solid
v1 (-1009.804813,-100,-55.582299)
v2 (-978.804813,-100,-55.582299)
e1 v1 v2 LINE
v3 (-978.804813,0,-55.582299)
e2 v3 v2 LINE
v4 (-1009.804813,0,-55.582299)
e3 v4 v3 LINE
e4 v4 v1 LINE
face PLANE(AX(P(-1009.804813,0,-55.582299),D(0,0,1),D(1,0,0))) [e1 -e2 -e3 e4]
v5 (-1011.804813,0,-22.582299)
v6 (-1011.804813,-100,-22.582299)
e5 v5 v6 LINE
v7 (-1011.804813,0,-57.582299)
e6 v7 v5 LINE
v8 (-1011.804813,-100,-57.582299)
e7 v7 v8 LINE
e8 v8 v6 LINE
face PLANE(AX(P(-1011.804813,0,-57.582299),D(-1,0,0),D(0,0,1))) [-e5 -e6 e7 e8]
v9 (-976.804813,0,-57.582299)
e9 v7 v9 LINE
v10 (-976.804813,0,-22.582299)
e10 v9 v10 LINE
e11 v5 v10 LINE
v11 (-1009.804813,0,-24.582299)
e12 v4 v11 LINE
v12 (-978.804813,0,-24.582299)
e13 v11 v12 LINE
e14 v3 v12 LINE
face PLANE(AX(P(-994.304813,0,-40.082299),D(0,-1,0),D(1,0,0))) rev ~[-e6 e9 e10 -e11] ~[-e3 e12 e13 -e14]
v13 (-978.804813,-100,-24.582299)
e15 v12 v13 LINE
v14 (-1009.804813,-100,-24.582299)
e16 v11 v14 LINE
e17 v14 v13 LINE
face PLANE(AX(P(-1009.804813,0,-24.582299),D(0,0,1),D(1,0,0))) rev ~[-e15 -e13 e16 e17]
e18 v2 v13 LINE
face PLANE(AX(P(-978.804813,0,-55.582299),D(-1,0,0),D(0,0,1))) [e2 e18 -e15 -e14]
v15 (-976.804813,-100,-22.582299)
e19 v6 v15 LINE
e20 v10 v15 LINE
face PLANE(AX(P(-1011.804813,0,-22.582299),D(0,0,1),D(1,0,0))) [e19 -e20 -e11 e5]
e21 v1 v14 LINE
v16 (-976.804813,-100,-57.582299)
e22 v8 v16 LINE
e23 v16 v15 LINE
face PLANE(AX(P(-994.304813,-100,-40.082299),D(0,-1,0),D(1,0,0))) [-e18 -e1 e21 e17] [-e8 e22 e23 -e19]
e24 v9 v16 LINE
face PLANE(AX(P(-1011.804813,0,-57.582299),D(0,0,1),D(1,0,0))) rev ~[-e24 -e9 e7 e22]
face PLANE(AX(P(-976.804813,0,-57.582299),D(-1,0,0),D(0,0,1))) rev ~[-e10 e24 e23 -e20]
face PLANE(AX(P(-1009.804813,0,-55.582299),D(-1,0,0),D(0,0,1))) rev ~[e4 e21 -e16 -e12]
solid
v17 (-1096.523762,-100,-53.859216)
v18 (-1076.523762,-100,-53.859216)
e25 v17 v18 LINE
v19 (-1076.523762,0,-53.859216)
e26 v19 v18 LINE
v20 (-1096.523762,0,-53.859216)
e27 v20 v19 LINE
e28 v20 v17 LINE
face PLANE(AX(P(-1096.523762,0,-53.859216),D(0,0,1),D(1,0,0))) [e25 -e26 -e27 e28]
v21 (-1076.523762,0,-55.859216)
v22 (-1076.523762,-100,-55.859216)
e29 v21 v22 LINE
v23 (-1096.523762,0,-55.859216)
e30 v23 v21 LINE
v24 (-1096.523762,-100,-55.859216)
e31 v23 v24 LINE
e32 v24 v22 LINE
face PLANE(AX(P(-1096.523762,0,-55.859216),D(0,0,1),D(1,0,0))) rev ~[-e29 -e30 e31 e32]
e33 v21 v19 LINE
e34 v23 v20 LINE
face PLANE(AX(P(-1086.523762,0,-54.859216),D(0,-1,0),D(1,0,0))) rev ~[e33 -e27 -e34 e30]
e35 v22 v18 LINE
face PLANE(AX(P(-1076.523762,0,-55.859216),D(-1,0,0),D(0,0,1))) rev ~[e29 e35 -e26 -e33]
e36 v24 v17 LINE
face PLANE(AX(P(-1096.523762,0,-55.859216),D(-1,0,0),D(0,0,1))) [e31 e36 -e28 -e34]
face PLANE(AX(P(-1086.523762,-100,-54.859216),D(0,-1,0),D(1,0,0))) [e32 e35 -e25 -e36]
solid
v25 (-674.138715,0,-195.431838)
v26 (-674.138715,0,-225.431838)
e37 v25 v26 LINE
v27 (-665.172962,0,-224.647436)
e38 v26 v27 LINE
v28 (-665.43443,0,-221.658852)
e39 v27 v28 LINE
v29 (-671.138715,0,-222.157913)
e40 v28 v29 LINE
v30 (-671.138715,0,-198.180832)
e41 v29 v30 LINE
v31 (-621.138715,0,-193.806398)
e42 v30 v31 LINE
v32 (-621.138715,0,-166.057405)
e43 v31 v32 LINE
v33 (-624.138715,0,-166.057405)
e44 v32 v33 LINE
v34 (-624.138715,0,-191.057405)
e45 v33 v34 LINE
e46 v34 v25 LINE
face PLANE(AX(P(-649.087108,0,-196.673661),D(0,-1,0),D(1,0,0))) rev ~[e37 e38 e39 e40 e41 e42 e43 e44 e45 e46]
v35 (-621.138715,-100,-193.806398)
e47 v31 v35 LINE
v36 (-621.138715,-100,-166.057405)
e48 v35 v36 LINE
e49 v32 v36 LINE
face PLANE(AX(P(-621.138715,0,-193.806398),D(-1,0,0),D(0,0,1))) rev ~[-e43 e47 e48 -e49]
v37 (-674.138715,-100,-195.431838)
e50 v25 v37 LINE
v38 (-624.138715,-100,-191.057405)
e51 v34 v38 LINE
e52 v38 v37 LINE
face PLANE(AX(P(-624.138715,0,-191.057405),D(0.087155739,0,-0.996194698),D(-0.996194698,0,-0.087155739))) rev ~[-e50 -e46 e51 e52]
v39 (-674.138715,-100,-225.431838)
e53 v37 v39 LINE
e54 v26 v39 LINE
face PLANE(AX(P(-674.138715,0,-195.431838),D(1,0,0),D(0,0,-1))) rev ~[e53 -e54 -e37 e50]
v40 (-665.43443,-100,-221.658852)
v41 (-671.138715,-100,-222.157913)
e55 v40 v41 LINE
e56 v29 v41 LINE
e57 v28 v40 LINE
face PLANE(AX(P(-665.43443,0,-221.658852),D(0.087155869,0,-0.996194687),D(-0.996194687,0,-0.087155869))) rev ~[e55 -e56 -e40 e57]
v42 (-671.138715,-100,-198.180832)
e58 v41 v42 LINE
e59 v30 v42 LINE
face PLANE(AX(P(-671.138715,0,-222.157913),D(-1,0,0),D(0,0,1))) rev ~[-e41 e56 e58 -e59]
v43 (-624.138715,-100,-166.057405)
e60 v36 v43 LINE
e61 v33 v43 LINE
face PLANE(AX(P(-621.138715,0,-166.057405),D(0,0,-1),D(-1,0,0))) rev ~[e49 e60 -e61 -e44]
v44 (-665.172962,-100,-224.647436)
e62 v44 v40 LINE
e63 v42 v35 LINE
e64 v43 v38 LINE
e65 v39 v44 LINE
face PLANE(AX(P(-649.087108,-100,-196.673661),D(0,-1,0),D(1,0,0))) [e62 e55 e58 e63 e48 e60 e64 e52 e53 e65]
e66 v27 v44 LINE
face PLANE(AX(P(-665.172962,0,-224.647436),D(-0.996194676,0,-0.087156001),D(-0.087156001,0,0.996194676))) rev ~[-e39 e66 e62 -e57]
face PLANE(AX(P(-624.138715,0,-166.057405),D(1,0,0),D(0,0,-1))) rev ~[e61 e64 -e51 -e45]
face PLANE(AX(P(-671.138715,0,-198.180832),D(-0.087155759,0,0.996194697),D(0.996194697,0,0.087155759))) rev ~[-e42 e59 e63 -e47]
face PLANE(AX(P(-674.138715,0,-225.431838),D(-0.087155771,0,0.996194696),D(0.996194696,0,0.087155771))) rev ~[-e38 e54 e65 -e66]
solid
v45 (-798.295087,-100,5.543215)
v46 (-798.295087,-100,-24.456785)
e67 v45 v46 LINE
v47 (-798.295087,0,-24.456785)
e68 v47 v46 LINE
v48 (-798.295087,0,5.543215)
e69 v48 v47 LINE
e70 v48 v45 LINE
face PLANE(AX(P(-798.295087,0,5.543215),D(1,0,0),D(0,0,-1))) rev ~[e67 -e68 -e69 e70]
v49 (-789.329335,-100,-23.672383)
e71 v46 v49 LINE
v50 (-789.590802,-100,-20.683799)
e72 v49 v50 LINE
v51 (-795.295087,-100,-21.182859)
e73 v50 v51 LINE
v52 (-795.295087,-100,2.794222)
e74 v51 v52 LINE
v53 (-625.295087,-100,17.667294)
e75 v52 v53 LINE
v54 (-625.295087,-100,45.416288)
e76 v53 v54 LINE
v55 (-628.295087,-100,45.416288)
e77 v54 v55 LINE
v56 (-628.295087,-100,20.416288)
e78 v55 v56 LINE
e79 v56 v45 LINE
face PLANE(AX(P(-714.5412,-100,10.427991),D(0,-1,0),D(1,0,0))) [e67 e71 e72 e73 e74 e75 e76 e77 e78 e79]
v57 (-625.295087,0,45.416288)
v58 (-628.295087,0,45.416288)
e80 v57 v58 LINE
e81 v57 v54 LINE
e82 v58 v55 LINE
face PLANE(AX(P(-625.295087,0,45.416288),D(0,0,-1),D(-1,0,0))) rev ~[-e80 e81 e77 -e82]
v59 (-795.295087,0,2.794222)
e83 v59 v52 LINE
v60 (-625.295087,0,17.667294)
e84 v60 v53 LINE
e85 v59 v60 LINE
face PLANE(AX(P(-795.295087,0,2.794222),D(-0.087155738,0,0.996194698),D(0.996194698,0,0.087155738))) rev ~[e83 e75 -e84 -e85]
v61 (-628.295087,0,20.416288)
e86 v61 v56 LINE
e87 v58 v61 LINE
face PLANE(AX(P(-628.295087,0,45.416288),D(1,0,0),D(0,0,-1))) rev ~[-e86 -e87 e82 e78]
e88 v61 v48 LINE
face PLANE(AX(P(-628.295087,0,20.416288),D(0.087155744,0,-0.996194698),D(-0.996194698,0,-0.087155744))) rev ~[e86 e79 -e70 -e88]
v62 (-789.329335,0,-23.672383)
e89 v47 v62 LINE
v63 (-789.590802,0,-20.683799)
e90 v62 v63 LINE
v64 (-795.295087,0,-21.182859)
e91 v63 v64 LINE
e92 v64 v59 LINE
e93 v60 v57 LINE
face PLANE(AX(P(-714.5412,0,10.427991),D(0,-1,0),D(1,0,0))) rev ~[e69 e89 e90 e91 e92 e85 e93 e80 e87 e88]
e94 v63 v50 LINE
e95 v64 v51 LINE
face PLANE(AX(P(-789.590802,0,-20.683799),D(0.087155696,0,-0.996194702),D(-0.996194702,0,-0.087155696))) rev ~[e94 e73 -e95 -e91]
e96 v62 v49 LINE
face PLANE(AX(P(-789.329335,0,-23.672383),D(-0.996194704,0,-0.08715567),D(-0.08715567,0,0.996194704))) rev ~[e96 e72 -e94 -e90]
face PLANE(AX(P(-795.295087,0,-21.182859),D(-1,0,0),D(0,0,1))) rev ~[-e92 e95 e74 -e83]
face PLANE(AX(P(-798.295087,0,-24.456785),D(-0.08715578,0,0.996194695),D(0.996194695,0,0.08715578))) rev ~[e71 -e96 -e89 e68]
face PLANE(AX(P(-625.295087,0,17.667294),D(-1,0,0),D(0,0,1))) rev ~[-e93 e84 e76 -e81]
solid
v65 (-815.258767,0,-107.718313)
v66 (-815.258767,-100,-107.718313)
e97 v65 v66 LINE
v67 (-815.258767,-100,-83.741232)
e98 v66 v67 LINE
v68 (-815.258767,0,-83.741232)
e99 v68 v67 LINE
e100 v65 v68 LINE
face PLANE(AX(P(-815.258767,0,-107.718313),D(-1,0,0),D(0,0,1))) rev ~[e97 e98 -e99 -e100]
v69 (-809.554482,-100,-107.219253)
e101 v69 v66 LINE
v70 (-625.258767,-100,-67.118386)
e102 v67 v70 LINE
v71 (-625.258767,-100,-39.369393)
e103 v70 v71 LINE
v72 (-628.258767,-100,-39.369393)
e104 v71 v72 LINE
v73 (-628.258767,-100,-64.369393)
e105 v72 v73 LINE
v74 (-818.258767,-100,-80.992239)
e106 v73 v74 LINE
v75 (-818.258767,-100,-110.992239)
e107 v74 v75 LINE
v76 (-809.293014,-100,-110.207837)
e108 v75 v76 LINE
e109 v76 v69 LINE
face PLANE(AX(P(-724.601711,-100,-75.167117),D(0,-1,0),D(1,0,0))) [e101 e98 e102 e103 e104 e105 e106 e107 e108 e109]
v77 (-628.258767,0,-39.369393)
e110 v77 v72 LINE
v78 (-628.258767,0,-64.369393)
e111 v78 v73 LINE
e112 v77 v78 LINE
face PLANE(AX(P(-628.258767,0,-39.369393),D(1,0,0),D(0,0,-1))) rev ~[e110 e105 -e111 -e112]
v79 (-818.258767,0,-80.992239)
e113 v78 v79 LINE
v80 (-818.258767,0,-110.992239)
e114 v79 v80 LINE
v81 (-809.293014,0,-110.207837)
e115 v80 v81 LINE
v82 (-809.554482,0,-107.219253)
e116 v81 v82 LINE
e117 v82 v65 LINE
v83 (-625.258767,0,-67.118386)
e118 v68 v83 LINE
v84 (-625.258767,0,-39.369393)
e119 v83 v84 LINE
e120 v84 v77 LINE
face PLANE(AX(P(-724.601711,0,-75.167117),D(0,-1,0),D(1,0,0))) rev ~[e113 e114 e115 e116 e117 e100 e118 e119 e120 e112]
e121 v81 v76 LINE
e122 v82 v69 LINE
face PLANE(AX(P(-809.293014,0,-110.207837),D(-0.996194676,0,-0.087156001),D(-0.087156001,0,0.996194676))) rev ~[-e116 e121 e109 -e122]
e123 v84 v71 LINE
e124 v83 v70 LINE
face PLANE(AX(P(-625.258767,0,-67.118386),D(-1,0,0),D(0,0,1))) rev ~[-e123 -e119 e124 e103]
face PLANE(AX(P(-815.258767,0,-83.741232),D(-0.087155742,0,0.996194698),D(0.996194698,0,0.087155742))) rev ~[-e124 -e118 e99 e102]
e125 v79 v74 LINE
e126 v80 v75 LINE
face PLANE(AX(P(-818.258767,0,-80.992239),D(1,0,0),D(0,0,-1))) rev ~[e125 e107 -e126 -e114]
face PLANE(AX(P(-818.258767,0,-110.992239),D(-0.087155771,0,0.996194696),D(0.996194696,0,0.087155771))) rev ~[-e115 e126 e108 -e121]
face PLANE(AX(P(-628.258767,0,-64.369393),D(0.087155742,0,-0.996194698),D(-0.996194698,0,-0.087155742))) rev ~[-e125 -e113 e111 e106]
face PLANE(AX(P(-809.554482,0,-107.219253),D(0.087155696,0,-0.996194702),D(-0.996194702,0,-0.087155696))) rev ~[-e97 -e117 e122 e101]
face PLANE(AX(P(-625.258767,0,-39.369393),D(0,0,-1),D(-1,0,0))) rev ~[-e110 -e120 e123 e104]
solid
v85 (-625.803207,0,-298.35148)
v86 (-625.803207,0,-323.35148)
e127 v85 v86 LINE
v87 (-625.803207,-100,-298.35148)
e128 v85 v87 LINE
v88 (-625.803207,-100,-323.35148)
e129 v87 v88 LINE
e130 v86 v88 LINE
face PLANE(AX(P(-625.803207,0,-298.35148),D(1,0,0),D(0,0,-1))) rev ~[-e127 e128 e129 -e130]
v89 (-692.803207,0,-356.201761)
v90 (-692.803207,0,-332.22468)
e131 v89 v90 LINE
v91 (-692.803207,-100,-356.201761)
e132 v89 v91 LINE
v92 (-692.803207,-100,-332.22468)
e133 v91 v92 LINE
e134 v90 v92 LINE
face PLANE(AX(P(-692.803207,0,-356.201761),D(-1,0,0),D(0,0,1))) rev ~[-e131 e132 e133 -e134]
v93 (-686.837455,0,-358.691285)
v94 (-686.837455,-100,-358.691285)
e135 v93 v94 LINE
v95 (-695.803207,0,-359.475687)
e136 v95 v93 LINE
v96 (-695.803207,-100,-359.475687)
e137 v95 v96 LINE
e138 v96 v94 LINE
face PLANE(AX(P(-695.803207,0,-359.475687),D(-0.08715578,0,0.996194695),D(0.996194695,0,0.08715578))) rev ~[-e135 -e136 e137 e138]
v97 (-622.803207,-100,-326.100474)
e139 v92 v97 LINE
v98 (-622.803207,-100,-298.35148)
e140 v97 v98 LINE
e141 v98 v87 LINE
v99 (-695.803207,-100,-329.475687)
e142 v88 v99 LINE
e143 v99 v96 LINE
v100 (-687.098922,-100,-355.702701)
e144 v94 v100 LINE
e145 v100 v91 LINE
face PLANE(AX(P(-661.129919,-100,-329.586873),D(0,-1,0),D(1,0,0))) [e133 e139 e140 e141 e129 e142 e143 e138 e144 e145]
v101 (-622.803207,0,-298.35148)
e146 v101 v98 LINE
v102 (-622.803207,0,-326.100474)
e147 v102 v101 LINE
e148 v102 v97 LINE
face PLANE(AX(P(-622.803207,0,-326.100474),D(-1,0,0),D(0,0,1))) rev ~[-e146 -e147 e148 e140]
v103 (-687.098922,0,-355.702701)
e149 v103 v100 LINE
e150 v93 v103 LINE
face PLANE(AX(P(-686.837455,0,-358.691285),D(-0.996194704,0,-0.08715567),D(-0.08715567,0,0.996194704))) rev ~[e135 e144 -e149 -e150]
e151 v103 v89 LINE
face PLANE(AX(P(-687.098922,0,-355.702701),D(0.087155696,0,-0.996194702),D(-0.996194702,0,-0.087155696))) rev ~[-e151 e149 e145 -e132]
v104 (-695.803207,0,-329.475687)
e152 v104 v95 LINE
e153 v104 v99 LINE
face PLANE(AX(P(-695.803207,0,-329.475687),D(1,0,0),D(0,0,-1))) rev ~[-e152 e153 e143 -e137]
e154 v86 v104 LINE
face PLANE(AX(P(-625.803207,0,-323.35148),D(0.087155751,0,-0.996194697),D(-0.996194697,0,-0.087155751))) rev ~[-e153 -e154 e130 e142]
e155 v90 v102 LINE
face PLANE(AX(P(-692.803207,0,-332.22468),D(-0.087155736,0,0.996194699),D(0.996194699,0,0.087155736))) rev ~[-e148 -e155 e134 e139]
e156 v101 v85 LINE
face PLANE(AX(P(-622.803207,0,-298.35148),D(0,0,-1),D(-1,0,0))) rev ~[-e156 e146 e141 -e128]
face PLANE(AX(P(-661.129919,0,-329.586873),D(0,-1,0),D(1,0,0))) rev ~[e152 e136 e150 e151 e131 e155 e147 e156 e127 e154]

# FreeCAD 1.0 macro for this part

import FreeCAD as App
import Part
import Sketcher

V = App.Vector
Q = App.Units.Quantity


def add_polygon(sketch, points):
    """Adds a closed chain of lines whose ends are joined by coincident constraints."""
    first, n = sketch.GeometryCount, len(points)
    for a, b in zip(points, points[1:] + points[:1]):
        sketch.addGeometry(Part.LineSegment(App.Vector(*a, 0), App.Vector(*b, 0)), False)
    for i in range(n):
        sketch.addConstraint(Sketcher.Constraint("Coincident", first + i, 2, first + (i + 1) % n, 1))

doc = App.newDocument("Part")
params = doc.addObject("Spreadsheet::Sheet", "Params")
for row, (alias, value) in enumerate([
    ("sketch1_width", "35 mm"),
    ("sketch1_width2", "31 mm"),
    ("pad1_length", "100 mm"),
    ("sketch2_width", "3 mm"),
    ("sketch2_width2", "35 mm"),
    ("sketch2_width3", "31 mm"),
    ("sketch2_width4", "20 mm"),
    ("sketch2_height", "25 mm"),
    ("pad2_length", "100 mm"),
], start=1):
    params.set(f"A{row}", alias)
    params.set(f"B{row}", "=" + value)
    params.setAlias(f"B{row}", alias)

body = doc.addObject("PartDesign::Body", "Body")
body.AllowCompound = True

# Sketch on XZ plane
sketch1 = doc.addObject("Sketcher::SketchObject", "Sketch")
body.addObject(sketch1)
sketch1.AttachmentSupport = (doc.XZ_Plane, [""])
sketch1.MapMode = "FlatFace"
add_polygon(sketch1, [(-1012, -23), (-1012, -58), (-977, -58), (-977, -23)])  # lines 0-3
add_polygon(sketch1, [(-979, -56), (-1010, -56), (-1010, -25), (-979, -25)])  # lines 4-7
sketch1.addConstraint([
    Sketcher.Constraint("Vertical", 0),
    Sketcher.Constraint("Horizontal", 1),
    Sketcher.Constraint("Vertical", 2),
    Sketcher.Constraint("Horizontal", 3),
    Sketcher.Constraint("Horizontal", 4),
    Sketcher.Constraint("Vertical", 5),
    Sketcher.Constraint("Horizontal", 6),
    Sketcher.Constraint("Vertical", 7),
    Sketcher.Constraint("Equal", 3, 0),
    Sketcher.Constraint("Equal", 6, 5),
    Sketcher.Constraint("DistanceX", 1, 1, 1, 2, Q("35 mm")),
    Sketcher.Constraint("DistanceX", 4, 2, 4, 1, Q("31 mm")),
    Sketcher.Constraint("DistanceX", 0, 2, 4, 2, Q("2 mm")),
    Sketcher.Constraint("DistanceY", 0, 2, 4, 2, Q("2 mm")),
    Sketcher.Constraint("DistanceY", 0, 2, -1, 1, Q("57.582299 mm")),
    Sketcher.Constraint("DistanceX", 0, 2, -1, 1, Q("1011.804813 mm")),
])
sketch1.setExpression("Constraints[18]", "Params.sketch1_width")
sketch1.setExpression("Constraints[19]", "Params.sketch1_width2")
pad1 = doc.addObject("PartDesign::Pad", "Pad")
body.addObject(pad1)
pad1.Profile = sketch1
pad1.setExpression("Length", "Params.pad1_length")

# Sketch on XZ plane
sketch2 = doc.addObject("Sketcher::SketchObject", "Sketch001")
body.addObject(sketch2)
sketch2.AttachmentSupport = (doc.XZ_Plane, [""])
sketch2.MapMode = "FlatFace"
add_polygon(sketch2, [(-625.3, 45.4), (-628.3, 45.4), (-628.3, 20.4), (-798.3, 5.5), (-798.3, -24.5), (-789.3, -23.7), (-789.6, -20.7), (-795.3, -21.2), (-795.3, 2.8), (-625.3, 17.7)])  # lines 0-9
add_polygon(sketch2, [(-1011.8, -22.6), (-1011.8, -57.6), (-976.8, -57.6), (-976.8, -22.6)])  # lines 10-13
add_polygon(sketch2, [(-978.8, -55.6), (-1009.8, -55.6), (-1009.8, -24.6), (-978.8, -24.6)])  # lines 14-17
add_polygon(sketch2, [(-1096.5, -53.9), (-1096.5, -55.9), (-1076.5, -55.9), (-1076.5, -53.9)])  # lines 18-21
add_polygon(sketch2, [(-625.3, -39.4), (-628.3, -39.4), (-628.3, -64.4), (-818.3, -81), (-818.3, -111), (-809.3, -110.2), (-809.6, -107.2), (-815.3, -107.7), (-815.3, -83.7), (-625.3, -67.1)])  # lines 22-31
add_polygon(sketch2, [(-621.1, -166.1), (-624.1, -166.1), (-624.1, -191.1), (-674.1, -195.4), (-674.1, -225.4), (-665.2, -224.6), (-665.4, -221.7), (-671.1, -222.2), (-671.1, -198.2), (-621.1, -193.8)])  # lines 32-41
add_polygon(sketch2, [(-622.8, -298.4), (-625.8, -298.4), (-625.8, -323.4), (-695.8, -329.5), (-695.8, -359.5), (-686.8, -358.7), (-687.1, -355.7), (-692.8, -356.2), (-692.8, -332.2), (-622.8, -326.1)])  # lines 42-51
sketch2.addConstraint([
    Sketcher.Constraint("Horizontal", 0),
    Sketcher.Constraint("Vertical", 1),
    Sketcher.Constraint("Vertical", 3),
    Sketcher.Constraint("Vertical", 7),
    Sketcher.Constraint("Vertical", 9),
    Sketcher.Constraint("Vertical", 10),
    Sketcher.Constraint("Horizontal", 11),
    Sketcher.Constraint("Vertical", 12),
    Sketcher.Constraint("Horizontal", 13),
    Sketcher.Constraint("Horizontal", 14),
    Sketcher.Constraint("Vertical", 15),
    Sketcher.Constraint("Horizontal", 16),
    Sketcher.Constraint("Vertical", 17),
    Sketcher.Constraint("Vertical", 18),
    Sketcher.Constraint("Horizontal", 19),
    Sketcher.Constraint("Vertical", 20),
    Sketcher.Constraint("Horizontal", 21),
    Sketcher.Constraint("Horizontal", 22),
    Sketcher.Constraint("Vertical", 23),
    Sketcher.Constraint("Vertical", 25),
    Sketcher.Constraint("Vertical", 29),
    Sketcher.Constraint("Vertical", 31),
    Sketcher.Constraint("Horizontal", 32),
    Sketcher.Constraint("Vertical", 33),
    Sketcher.Constraint("Vertical", 35),
    Sketcher.Constraint("Vertical", 39),
    Sketcher.Constraint("Vertical", 41),
    Sketcher.Constraint("Horizontal", 42),
    Sketcher.Constraint("Vertical", 43),
    Sketcher.Constraint("Vertical", 45),
    Sketcher.Constraint("Vertical", 49),
    Sketcher.Constraint("Vertical", 51),
    Sketcher.Constraint("Parallel", 2, 4),
    Sketcher.Constraint("Perpendicular", 4, 5),
    Sketcher.Constraint("Perpendicular", 5, 6),
    Sketcher.Constraint("Parallel", 6, 8),
    Sketcher.Constraint("Parallel", 8, 24),
    Sketcher.Constraint("Parallel", 24, 26),
    Sketcher.Constraint("Perpendicular", 26, 27),
    Sketcher.Constraint("Perpendicular", 27, 28),
    Sketcher.Constraint("Parallel", 28, 30),
    Sketcher.Constraint("Parallel", 30, 34),
    Sketcher.Constraint("Parallel", 34, 36),
    Sketcher.Constraint("Perpendicular", 36, 37),
    Sketcher.Constraint("Perpendicular", 37, 38),
    Sketcher.Constraint("Parallel", 38, 40),
    Sketcher.Constraint("Parallel", 40, 44),
    Sketcher.Constraint("Parallel", 44, 46),
    Sketcher.Constraint("Perpendicular", 46, 47),
    Sketcher.Constraint("Perpendicular", 47, 48),
    Sketcher.Constraint("Parallel", 48, 50),
    Sketcher.Constraint("Equal", 0, 22),
    Sketcher.Constraint("Equal", 22, 32),
    Sketcher.Constraint("Equal", 32, 42),
    Sketcher.Constraint("Equal", 13, 10),
    Sketcher.Constraint("Equal", 16, 15),
    Sketcher.Constraint("Equal", 1, 23),
    Sketcher.Constraint("Equal", 3, 25),
    Sketcher.Constraint("Equal", 7, 29),
    Sketcher.Constraint("Equal", 9, 31),
    Sketcher.Constraint("Equal", 23, 33),
    Sketcher.Constraint("Equal", 25, 35),
    Sketcher.Constraint("Equal", 29, 39),
    Sketcher.Constraint("Equal", 31, 41),
    Sketcher.Constraint("Equal", 33, 43),
    Sketcher.Constraint("Equal", 35, 45),
    Sketcher.Constraint("Equal", 39, 49),
    Sketcher.Constraint("Equal", 41, 51),
    Sketcher.Constraint("Equal", 2, 8),
    Sketcher.Constraint("Equal", 4, 26),
    Sketcher.Constraint("Equal", 6, 28),
    Sketcher.Constraint("Equal", 26, 36),
    Sketcher.Constraint("Equal", 28, 38),
    Sketcher.Constraint("Equal", 36, 46),
    Sketcher.Constraint("Equal", 38, 48),
    Sketcher.Constraint("DistanceX", 0, 2, 0, 1, Q("3 mm")),
    Sketcher.Constraint("DistanceX", 11, 1, 11, 2, Q("35 mm")),
    Sketcher.Constraint("DistanceX", 14, 2, 14, 1, Q("31 mm")),
    Sketcher.Constraint("DistanceX", 19, 1, 19, 2, Q("20 mm")),
    Sketcher.Constraint("DistanceY", 1, 2, 1, 1, Q("25 mm")),
    Sketcher.Constraint("DistanceY", 3, 2, 3, 1, Q("30 mm")),
    Sketcher.Constraint("DistanceY", 18, 2, 18, 1, Q("2 mm")),
    Sketcher.Constraint("Angle", 2, Q("-175 deg")),
    Sketcher.Constraint("Distance", 4, Q("9 mm")),
    Sketcher.Constraint("Distance", 5, Q("3 mm")),
    Sketcher.Constraint("DistanceX", 2, 2, 1, 2, Q("170 mm")),
    Sketcher.Constraint("DistanceX", 10, 2, 14, 2, Q("2 mm")),
    Sketcher.Constraint("DistanceY", 10, 2, 14, 2, Q("2 mm")),
    Sketcher.Constraint("DistanceX", 34, 2, 33, 2, Q("50 mm")),
    Sketcher.Constraint("DistanceX", 44, 2, 43, 2, Q("70 mm")),
    Sketcher.Constraint("DistanceY", 34, 2, 26, 2, Q("85.224001 mm")),
    Sketcher.Constraint("DistanceY", 7, 1, 7, 2, Q("23.977081 mm")),
    Sketcher.Constraint("DistanceY", 5, 2, -1, 1, Q("20.683799 mm")),
    Sketcher.Constraint("DistanceY", 10, 2, -1, 1, Q("57.582299 mm")),
    Sketcher.Constraint("DistanceY", 40, 2, -1, 1, Q("193.806398 mm")),
    Sketcher.Constraint("DistanceY", 47, 2, -1, 1, Q("355.702701 mm")),
    Sketcher.Constraint("DistanceX", 26, 2, 34, 2, Q("135.154299 mm")),
    Sketcher.Constraint("Distance", 24, Q("190.725769 mm")),
    Sketcher.Constraint("DistanceX", 18, 2, -1, 1, Q("1096.523762 mm")),
    Sketcher.Constraint("DistanceX", 27, 2, -1, 1, Q("809.554482 mm")),
    Sketcher.Constraint("DistanceX", 47, 2, -1, 1, Q("687.098922 mm")),
    Sketcher.Constraint("DistanceX", 18, 2, 10, 2, Q("84.718949 mm")),
    Sketcher.Constraint("DistanceX", 22, 2, 8, 2, Q("2.96368 mm")),
    Sketcher.Constraint("DistanceY", 18, 2, -1, 1, Q("55.859216 mm")),
])
sketch2.setExpression("Constraints[127]", "Params.sketch2_width")
sketch2.setExpression("Constraints[128]", "Params.sketch2_width2")
sketch2.setExpression("Constraints[129]", "Params.sketch2_width3")
sketch2.setExpression("Constraints[130]", "Params.sketch2_width4")
sketch2.setExpression("Constraints[131]", "Params.sketch2_height")
pad2 = doc.addObject("PartDesign::Pad", "Pad001")
body.addObject(pad2)
pad2.Profile = sketch2
pad2.setExpression("Length", "Params.pad2_length")

doc.recompute()
